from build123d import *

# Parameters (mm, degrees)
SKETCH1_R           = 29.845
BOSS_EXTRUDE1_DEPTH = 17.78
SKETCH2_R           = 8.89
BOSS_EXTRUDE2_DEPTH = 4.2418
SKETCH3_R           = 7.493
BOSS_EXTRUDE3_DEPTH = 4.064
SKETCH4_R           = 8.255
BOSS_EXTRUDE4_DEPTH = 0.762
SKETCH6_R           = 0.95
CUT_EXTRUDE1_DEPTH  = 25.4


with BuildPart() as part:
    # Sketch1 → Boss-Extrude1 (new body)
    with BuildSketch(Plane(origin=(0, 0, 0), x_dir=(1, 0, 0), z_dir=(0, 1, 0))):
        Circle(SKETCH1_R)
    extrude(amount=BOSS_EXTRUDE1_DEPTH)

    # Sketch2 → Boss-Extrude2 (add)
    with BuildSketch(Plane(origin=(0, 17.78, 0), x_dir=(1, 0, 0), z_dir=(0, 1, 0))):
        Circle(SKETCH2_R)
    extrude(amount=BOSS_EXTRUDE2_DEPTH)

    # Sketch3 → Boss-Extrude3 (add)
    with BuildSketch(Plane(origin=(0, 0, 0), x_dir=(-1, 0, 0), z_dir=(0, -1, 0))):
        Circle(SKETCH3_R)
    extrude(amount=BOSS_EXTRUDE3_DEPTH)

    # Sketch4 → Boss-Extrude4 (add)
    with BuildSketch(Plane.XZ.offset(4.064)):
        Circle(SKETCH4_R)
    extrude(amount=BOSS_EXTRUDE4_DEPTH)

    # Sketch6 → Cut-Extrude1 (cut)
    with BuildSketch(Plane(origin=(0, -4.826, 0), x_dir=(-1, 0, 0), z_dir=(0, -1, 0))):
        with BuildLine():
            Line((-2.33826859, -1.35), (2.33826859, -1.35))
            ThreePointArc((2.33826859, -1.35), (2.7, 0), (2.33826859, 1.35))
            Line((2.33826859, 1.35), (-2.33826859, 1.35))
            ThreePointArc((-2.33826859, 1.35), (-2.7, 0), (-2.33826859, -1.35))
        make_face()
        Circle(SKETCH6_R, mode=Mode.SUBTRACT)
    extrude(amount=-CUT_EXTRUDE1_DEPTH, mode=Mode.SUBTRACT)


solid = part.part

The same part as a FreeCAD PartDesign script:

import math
import FreeCAD as App
import Part
import Sketcher
from FreeCAD import Vector
Q = App.Units.Quantity

doc = App.newDocument("Part")
body = doc.addObject("PartDesign::Body", "Body")

# Sketch on XZ plane
sketch1 = doc.addObject("Sketcher::SketchObject", "Sketch")
body.addObject(sketch1)
sketch1.AttachmentSupport = (doc.XZ_Plane, [""])
sketch1.MapMode = "FlatFace"
sketch1.addGeometry(Part.Circle(Vector(0, 0, 0), Vector(0, 0, 1), 29.845), False)
sketch1.addConstraint([
    Sketcher.Constraint("Coincident", 0, 3, -1, 1),
    Sketcher.Constraint("Diameter", 0, Q("2.35 in")),
])
pad1 = doc.addObject("PartDesign::Pad", "Pad")
body.addObject(pad1)
pad1.Profile = sketch1
pad1.Length = Q("0.7 in")
pad1.Reversed = True

# Sketch on XZ plane
sketch2 = doc.addObject("Sketcher::SketchObject", "Sketch001")
body.addObject(sketch2)
sketch2.AttachmentSupport = (doc.XZ_Plane, [""])
sketch2.MapMode = "FlatFace"
sketch2.AttachmentOffset = App.Placement(Vector(0, 0, -0.7 * 25.4), App.Rotation())
sketch2.addGeometry(Part.Circle(Vector(0, 0, 0), Vector(0, 0, 1), 8.89), False)
sketch2.addConstraint([
    Sketcher.Constraint("Coincident", 0, 3, -1, 1),
    Sketcher.Constraint("Diameter", 0, Q("0.7 in")),
])
pad2 = doc.addObject("PartDesign::Pad", "Pad001")
body.addObject(pad2)
pad2.Profile = sketch2
pad2.Length = Q("0.167 in")
pad2.Reversed = True

# Sketch on XZ plane
sketch3 = doc.addObject("Sketcher::SketchObject", "Sketch002")
body.addObject(sketch3)
sketch3.AttachmentSupport = (doc.XZ_Plane, [""])
sketch3.MapMode = "FlatFace"
sketch3.addGeometry(Part.Circle(Vector(0, 0, 0), Vector(0, 0, 1), 7.493), False)
sketch3.addConstraint([
    Sketcher.Constraint("Coincident", 0, 3, -1, 1),
    Sketcher.Constraint("Diameter", 0, Q("0.59 in")),
])
pad3 = doc.addObject("PartDesign::Pad", "Pad002")
body.addObject(pad3)
pad3.Profile = sketch3
pad3.Length = Q("0.16 in")

# Sketch on XZ plane
sketch4 = doc.addObject("Sketcher::SketchObject", "Sketch003")
body.addObject(sketch4)
sketch4.AttachmentSupport = (doc.XZ_Plane, [""])
sketch4.MapMode = "FlatFace"
sketch4.AttachmentOffset = App.Placement(Vector(0, 0, 0.16 * 25.4), App.Rotation())
sketch4.addGeometry(Part.Circle(Vector(0, 0, 0), Vector(0, 0, 1), 8.255), False)
sketch4.addConstraint([
    Sketcher.Constraint("Coincident", 0, 3, -1, 1),
    Sketcher.Constraint("Diameter", 0, Q("0.65 in")),
])
pad4 = doc.addObject("PartDesign::Pad", "Pad003")
body.addObject(pad4)
pad4.Profile = sketch4
pad4.Length = Q("0.03 in")

# Sketch on XZ plane
sketch5 = doc.addObject("Sketcher::SketchObject", "Sketch004")
body.addObject(sketch5)
sketch5.AttachmentSupport = (doc.XZ_Plane, [""])
sketch5.MapMode = "FlatFace"
sketch5.AttachmentOffset = App.Placement(Vector(0, 0, 0.19 * 25.4), App.Rotation())
sketch5.addGeometry([
    Part.LineSegment(Vector(2.338269, 1.35, 0), Vector(-2.338269, 1.35, 0)),  # 0
    Part.ArcOfCircle(Part.Circle(Vector(0, 0, 0), Vector(0, 0, 1), 2.7), math.radians(150), math.radians(210)),  # 1
    Part.LineSegment(Vector(-2.338269, -1.35, 0), Vector(2.338269, -1.35, 0)),  # 2
    Part.ArcOfCircle(Part.Circle(Vector(0, 0, 0), Vector(0, 0, 1), 2.7), math.radians(-30), math.radians(30)),  # 3
    Part.Circle(Vector(0, 0, 0), Vector(0, 0, 1), 0.95),  # 4
], False)
sketch5.addConstraint([
    Sketcher.Constraint("Coincident", 0, 2, 1, 1),
    Sketcher.Constraint("Coincident", 1, 2, 2, 1),
    Sketcher.Constraint("Coincident", 2, 2, 3, 1),
    Sketcher.Constraint("Coincident", 3, 2, 0, 1),
    Sketcher.Constraint("Horizontal", 0),
    Sketcher.Constraint("Horizontal", 2),
    Sketcher.Constraint("Coincident", 1, 3, -1, 1),
    Sketcher.Constraint("Coincident", 3, 3, -1, 1),
    Sketcher.Constraint("Coincident", 4, 3, -1, 1),
    Sketcher.Constraint("Equal", 1, 3),
    Sketcher.Constraint("Vertical", 0, 2, 1, 2),
    Sketcher.Constraint("Diameter", 4, 1.9),
    Sketcher.Constraint("Radius", 1, 2.7),
    Sketcher.Constraint("DistanceY", -1, 1, 0, 2, 1.35),
])
pocket1 = doc.addObject("PartDesign::Pocket", "Pocket")
body.addObject(pocket1)
pocket1.Profile = sketch5
pocket1.Length = Q("1 in")

doc.recompute()
